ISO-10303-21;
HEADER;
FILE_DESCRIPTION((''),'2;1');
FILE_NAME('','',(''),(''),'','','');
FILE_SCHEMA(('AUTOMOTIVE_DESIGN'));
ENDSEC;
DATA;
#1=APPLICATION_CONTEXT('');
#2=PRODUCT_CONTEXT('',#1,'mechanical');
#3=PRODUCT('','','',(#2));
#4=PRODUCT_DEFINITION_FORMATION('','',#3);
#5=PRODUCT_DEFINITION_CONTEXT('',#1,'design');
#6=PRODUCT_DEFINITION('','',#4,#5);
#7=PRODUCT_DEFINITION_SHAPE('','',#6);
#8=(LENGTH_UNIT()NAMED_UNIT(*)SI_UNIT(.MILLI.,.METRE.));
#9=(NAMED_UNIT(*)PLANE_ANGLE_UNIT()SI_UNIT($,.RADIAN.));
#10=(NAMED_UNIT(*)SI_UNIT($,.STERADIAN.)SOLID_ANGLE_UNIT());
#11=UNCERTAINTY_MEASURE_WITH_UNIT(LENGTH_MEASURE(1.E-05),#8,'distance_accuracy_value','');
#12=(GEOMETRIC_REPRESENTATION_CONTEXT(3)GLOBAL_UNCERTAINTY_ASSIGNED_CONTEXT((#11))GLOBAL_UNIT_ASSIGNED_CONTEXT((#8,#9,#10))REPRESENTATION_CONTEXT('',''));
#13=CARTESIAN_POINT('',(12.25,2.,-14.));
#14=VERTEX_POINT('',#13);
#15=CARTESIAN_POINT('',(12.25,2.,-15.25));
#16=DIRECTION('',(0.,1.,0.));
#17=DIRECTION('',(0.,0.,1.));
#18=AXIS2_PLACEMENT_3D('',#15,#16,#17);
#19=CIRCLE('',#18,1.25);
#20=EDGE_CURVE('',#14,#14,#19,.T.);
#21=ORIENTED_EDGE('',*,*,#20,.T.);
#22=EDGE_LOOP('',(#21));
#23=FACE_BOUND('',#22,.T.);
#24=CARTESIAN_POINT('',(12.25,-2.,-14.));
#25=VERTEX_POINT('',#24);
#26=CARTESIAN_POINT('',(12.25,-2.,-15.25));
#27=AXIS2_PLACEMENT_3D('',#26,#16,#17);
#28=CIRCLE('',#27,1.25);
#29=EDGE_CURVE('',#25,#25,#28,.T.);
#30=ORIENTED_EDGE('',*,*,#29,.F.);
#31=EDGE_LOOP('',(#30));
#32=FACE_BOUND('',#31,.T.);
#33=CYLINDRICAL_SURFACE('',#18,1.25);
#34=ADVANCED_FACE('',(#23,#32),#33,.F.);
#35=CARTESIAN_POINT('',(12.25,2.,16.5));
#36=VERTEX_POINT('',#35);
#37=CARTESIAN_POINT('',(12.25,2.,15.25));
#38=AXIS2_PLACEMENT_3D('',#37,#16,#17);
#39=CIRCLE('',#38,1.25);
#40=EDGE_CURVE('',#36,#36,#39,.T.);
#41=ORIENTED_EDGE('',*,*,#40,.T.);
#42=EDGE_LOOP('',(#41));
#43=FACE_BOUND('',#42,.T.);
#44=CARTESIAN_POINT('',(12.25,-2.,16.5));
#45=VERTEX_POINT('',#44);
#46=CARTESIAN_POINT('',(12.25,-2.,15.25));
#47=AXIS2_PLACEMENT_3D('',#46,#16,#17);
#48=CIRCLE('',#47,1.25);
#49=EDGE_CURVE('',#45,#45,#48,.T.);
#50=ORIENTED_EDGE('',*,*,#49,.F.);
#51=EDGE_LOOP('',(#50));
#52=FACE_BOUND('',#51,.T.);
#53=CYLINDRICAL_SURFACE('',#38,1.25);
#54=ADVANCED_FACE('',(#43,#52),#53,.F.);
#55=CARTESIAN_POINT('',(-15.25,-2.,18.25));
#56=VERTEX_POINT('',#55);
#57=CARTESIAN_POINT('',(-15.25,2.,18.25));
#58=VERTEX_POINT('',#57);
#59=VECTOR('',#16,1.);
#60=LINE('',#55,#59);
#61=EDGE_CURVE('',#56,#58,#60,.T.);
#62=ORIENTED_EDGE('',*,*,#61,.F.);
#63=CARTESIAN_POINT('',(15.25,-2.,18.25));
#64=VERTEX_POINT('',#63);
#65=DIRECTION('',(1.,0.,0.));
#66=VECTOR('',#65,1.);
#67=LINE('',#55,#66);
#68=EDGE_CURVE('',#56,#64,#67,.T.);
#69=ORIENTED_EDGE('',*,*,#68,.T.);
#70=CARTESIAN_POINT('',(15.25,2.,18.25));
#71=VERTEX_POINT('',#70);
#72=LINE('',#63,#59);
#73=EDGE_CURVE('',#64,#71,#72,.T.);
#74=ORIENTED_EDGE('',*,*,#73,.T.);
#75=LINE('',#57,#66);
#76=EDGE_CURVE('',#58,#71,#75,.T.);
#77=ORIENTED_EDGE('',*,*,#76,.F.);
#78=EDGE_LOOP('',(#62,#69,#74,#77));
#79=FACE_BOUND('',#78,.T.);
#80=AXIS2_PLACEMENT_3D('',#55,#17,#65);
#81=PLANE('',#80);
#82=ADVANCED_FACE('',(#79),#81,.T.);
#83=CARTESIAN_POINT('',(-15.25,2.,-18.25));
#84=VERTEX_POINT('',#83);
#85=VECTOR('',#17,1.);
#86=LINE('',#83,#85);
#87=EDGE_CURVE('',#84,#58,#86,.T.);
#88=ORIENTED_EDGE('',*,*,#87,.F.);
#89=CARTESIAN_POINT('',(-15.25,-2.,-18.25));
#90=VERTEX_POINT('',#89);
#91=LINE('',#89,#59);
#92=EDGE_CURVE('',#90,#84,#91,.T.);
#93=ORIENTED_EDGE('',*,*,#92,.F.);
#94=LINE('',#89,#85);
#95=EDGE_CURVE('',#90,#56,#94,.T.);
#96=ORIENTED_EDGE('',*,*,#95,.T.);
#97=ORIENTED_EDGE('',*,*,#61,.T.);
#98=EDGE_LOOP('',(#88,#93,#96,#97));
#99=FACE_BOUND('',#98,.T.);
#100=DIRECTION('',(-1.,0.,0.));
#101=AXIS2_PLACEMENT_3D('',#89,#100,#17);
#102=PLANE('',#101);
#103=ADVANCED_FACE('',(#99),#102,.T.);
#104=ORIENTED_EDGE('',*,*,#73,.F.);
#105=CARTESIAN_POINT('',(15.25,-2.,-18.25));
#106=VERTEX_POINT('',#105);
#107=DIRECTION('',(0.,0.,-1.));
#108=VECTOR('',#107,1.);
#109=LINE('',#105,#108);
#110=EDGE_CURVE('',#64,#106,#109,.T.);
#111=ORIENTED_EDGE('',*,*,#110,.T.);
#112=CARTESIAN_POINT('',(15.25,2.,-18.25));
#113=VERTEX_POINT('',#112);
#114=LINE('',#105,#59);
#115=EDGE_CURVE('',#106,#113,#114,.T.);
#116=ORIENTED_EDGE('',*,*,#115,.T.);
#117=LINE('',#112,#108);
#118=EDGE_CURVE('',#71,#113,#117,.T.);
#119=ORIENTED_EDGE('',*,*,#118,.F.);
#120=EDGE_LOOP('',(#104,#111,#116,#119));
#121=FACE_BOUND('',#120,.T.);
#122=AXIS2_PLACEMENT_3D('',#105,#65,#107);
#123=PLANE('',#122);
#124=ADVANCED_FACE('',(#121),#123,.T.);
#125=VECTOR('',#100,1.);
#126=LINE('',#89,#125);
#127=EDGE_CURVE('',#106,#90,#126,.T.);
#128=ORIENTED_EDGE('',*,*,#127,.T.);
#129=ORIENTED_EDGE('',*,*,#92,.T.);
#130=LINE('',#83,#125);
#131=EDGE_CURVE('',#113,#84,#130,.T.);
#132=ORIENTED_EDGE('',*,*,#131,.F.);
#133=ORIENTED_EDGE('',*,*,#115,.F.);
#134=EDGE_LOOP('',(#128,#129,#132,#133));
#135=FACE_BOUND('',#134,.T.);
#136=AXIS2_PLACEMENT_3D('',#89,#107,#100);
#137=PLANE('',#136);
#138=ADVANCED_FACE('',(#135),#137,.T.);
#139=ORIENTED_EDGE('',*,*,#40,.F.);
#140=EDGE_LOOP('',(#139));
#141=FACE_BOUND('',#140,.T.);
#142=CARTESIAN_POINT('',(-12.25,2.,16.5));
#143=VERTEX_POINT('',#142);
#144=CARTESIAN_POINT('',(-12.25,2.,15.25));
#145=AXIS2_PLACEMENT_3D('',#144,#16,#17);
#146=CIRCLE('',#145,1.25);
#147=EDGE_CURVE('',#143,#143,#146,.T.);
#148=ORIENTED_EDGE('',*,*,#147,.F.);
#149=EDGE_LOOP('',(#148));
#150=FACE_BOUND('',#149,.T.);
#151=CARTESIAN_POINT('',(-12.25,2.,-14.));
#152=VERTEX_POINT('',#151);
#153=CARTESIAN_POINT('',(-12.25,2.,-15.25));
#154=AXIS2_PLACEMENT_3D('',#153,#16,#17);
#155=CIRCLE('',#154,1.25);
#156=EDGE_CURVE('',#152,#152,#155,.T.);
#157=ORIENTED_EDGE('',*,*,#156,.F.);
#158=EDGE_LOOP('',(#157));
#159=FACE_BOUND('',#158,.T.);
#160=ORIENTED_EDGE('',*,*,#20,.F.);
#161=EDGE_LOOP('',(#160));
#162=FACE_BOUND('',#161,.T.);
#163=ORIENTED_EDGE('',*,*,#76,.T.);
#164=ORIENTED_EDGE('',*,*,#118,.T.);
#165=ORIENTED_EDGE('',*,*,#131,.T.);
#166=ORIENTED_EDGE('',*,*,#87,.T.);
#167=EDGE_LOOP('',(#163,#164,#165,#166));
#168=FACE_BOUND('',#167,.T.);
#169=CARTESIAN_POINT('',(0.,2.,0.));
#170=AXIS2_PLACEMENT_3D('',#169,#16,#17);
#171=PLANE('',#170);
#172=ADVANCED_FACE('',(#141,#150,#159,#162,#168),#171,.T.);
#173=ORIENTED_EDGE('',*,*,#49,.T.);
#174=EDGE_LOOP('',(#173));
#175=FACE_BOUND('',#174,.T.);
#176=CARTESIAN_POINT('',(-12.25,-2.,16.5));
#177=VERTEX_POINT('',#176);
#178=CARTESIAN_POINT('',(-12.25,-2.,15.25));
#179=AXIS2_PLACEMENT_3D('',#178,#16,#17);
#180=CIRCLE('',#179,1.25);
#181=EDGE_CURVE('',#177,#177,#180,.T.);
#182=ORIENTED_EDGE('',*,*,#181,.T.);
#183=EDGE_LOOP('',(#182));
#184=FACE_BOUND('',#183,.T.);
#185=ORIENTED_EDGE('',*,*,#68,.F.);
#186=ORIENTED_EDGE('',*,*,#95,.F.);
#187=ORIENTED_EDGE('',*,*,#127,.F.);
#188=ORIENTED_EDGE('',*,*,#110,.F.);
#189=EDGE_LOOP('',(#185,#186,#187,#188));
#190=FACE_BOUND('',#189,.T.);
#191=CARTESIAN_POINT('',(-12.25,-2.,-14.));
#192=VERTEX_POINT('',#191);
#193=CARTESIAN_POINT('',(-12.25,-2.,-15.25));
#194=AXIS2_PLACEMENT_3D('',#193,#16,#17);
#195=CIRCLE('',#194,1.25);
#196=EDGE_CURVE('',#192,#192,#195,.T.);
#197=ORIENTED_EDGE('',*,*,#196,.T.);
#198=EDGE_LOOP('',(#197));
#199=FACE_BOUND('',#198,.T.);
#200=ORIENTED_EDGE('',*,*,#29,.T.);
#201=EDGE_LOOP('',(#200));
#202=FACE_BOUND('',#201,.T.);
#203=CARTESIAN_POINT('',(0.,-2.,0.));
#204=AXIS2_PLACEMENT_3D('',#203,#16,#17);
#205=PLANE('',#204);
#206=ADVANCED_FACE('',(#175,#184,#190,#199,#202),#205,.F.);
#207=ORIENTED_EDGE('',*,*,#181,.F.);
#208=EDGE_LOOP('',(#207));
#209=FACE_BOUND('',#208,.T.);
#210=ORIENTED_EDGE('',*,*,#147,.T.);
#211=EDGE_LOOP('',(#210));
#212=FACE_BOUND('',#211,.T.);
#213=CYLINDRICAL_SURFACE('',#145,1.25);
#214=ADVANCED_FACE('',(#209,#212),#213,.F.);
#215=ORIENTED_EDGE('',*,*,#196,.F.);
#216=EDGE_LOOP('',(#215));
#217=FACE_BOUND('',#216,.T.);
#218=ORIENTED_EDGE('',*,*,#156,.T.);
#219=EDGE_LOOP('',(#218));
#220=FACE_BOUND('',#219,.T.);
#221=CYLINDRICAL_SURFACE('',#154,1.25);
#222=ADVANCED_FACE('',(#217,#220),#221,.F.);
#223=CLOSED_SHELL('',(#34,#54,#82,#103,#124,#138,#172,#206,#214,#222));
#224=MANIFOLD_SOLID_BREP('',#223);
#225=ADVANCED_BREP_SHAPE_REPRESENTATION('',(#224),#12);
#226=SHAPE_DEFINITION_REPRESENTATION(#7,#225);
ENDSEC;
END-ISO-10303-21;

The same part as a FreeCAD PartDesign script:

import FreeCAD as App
import Part
import Sketcher
Q = App.Units.Quantity


def add_polygon(sketch, points):
    """Adds a closed chain of lines whose ends are joined by coincident constraints."""
    first, n = sketch.GeometryCount, len(points)
    for a, b in zip(points, points[1:] + points[:1]):
        sketch.addGeometry(Part.LineSegment(App.Vector(*a, 0), App.Vector(*b, 0)), False)
    for i in range(n):
        sketch.addConstraint(Sketcher.Constraint("Coincident", first + i, 2, first + (i + 1) % n, 1))

doc = App.newDocument("Part")
body = doc.addObject("PartDesign::Body", "Body")

sketch1 = body.newObject("Sketcher::SketchObject", "Sketch")
sketch1.AttachmentSupport = (doc.getObject("XZ_Plane"), [""])
sketch1.MapMode = "FlatFace"
add_polygon(sketch1, [(-12, -12), (-12, 12), (12, 12), (12, -12)])
sketch1.addConstraint([
    Sketcher.Constraint("Vertical", 0),
    Sketcher.Constraint("Horizontal", 1),
    Sketcher.Constraint("Vertical", 2),
    Sketcher.Constraint("Horizontal", 3),
    Sketcher.Constraint("Symmetric", 0, 2, 2, 2, -1, 1),
    Sketcher.Constraint("Equal", 3, 0),
    Sketcher.Constraint("DistanceX", 1, 1, 1, 2, Q("24.5 mm")),
])
pad1 = body.newObject("PartDesign::Pad", "Pad")
pad1.Profile = sketch1
pad1.Length = 4
pad1.Midplane = True

sketch2 = body.newObject("Sketcher::SketchObject", "Sketch001")
sketch2.AttachmentSupport = (doc.getObject("XZ_Plane"), [""])
sketch2.MapMode = "FlatFace"
sketch2.AttachmentOffset = App.Placement(App.Vector(0, 0, -2), App.Rotation())
add_polygon(sketch2, [(-15, -18), (-15, 18), (15, 18), (15, -18)])
add_polygon(sketch2, [(12, 12), (-12, 12), (-12, -12), (12, -12)])
sketch2.addConstraint([
    Sketcher.Constraint("Vertical", 0),
    Sketcher.Constraint("Horizontal", 1),
    Sketcher.Constraint("Vertical", 2),
    Sketcher.Constraint("Horizontal", 3),
    Sketcher.Constraint("Horizontal", 4),
    Sketcher.Constraint("Vertical", 5),
    Sketcher.Constraint("Horizontal", 6),
    Sketcher.Constraint("Vertical", 7),
    Sketcher.Constraint("Symmetric", 0, 2, 2, 2, -1, 1),
    Sketcher.Constraint("Symmetric", 4, 2, 6, 2, -1, 1),
    Sketcher.Constraint("Equal", 6, 5),
    Sketcher.Constraint("DistanceX", 1, 1, 1, 2, Q("30.5 mm")),
    Sketcher.Constraint("DistanceX", 4, 2, 4, 1, Q("24.5 mm")),
    Sketcher.Constraint("DistanceY", 0, 1, 0, 2, Q("36.5 mm")),
])
pad2 = body.newObject("PartDesign::Pad", "Pad001")
pad2.Profile = sketch2
pad2.Length = 4

sketch3 = body.newObject("Sketcher::SketchObject", "Sketch002")
sketch3.AttachmentSupport = (doc.getObject("XZ_Plane"), [""])
sketch3.MapMode = "FlatFace"
sketch3.AttachmentOffset = App.Placement(App.Vector(0, 0, -2), App.Rotation())
sketch3.addGeometry([
    Part.Circle(App.Vector(-12.2, -15.2, 0), App.Vector(0, 0, 1), 1.2),
    Part.Circle(App.Vector(12.2, -15.2, 0), App.Vector(0, 0, 1), 1.2),
    Part.Circle(App.Vector(-12.2, 15.2, 0), App.Vector(0, 0, 1), 1.2),
    Part.Circle(App.Vector(12.2, 15.2, 0), App.Vector(0, 0, 1), 1.2),
], False)
sketch3.addConstraint([
    Sketcher.Constraint("Equal", 0, 1),
    Sketcher.Constraint("Equal", 1, 2),
    Sketcher.Constraint("Equal", 2, 3),
    Sketcher.Constraint("Symmetric", 1, 3, 2, 3, -1, 1),
    Sketcher.Constraint("Symmetric", 0, 3, 3, 3, -1, 1),
    Sketcher.Constraint("Symmetric", 0, 3, 1, 3, -2),
    Sketcher.Constraint("Diameter", 0, Q("2.5 mm")),
    Sketcher.Constraint("DistanceX", 0, 3, 1, 3, Q("24.5 mm")),
    Sketcher.Constraint("DistanceY", 0, 3, 2, 3, Q("30.5 mm")),
])
doc.recompute()
hole = body.newObject("PartDesign::Hole", "Hole")
hole.Profile = sketch3
hole.ThreadType = "None"
hole.Diameter = 2.5
hole.DepthType = "ThroughAll"
hole.Reversed = True

doc.recompute()
